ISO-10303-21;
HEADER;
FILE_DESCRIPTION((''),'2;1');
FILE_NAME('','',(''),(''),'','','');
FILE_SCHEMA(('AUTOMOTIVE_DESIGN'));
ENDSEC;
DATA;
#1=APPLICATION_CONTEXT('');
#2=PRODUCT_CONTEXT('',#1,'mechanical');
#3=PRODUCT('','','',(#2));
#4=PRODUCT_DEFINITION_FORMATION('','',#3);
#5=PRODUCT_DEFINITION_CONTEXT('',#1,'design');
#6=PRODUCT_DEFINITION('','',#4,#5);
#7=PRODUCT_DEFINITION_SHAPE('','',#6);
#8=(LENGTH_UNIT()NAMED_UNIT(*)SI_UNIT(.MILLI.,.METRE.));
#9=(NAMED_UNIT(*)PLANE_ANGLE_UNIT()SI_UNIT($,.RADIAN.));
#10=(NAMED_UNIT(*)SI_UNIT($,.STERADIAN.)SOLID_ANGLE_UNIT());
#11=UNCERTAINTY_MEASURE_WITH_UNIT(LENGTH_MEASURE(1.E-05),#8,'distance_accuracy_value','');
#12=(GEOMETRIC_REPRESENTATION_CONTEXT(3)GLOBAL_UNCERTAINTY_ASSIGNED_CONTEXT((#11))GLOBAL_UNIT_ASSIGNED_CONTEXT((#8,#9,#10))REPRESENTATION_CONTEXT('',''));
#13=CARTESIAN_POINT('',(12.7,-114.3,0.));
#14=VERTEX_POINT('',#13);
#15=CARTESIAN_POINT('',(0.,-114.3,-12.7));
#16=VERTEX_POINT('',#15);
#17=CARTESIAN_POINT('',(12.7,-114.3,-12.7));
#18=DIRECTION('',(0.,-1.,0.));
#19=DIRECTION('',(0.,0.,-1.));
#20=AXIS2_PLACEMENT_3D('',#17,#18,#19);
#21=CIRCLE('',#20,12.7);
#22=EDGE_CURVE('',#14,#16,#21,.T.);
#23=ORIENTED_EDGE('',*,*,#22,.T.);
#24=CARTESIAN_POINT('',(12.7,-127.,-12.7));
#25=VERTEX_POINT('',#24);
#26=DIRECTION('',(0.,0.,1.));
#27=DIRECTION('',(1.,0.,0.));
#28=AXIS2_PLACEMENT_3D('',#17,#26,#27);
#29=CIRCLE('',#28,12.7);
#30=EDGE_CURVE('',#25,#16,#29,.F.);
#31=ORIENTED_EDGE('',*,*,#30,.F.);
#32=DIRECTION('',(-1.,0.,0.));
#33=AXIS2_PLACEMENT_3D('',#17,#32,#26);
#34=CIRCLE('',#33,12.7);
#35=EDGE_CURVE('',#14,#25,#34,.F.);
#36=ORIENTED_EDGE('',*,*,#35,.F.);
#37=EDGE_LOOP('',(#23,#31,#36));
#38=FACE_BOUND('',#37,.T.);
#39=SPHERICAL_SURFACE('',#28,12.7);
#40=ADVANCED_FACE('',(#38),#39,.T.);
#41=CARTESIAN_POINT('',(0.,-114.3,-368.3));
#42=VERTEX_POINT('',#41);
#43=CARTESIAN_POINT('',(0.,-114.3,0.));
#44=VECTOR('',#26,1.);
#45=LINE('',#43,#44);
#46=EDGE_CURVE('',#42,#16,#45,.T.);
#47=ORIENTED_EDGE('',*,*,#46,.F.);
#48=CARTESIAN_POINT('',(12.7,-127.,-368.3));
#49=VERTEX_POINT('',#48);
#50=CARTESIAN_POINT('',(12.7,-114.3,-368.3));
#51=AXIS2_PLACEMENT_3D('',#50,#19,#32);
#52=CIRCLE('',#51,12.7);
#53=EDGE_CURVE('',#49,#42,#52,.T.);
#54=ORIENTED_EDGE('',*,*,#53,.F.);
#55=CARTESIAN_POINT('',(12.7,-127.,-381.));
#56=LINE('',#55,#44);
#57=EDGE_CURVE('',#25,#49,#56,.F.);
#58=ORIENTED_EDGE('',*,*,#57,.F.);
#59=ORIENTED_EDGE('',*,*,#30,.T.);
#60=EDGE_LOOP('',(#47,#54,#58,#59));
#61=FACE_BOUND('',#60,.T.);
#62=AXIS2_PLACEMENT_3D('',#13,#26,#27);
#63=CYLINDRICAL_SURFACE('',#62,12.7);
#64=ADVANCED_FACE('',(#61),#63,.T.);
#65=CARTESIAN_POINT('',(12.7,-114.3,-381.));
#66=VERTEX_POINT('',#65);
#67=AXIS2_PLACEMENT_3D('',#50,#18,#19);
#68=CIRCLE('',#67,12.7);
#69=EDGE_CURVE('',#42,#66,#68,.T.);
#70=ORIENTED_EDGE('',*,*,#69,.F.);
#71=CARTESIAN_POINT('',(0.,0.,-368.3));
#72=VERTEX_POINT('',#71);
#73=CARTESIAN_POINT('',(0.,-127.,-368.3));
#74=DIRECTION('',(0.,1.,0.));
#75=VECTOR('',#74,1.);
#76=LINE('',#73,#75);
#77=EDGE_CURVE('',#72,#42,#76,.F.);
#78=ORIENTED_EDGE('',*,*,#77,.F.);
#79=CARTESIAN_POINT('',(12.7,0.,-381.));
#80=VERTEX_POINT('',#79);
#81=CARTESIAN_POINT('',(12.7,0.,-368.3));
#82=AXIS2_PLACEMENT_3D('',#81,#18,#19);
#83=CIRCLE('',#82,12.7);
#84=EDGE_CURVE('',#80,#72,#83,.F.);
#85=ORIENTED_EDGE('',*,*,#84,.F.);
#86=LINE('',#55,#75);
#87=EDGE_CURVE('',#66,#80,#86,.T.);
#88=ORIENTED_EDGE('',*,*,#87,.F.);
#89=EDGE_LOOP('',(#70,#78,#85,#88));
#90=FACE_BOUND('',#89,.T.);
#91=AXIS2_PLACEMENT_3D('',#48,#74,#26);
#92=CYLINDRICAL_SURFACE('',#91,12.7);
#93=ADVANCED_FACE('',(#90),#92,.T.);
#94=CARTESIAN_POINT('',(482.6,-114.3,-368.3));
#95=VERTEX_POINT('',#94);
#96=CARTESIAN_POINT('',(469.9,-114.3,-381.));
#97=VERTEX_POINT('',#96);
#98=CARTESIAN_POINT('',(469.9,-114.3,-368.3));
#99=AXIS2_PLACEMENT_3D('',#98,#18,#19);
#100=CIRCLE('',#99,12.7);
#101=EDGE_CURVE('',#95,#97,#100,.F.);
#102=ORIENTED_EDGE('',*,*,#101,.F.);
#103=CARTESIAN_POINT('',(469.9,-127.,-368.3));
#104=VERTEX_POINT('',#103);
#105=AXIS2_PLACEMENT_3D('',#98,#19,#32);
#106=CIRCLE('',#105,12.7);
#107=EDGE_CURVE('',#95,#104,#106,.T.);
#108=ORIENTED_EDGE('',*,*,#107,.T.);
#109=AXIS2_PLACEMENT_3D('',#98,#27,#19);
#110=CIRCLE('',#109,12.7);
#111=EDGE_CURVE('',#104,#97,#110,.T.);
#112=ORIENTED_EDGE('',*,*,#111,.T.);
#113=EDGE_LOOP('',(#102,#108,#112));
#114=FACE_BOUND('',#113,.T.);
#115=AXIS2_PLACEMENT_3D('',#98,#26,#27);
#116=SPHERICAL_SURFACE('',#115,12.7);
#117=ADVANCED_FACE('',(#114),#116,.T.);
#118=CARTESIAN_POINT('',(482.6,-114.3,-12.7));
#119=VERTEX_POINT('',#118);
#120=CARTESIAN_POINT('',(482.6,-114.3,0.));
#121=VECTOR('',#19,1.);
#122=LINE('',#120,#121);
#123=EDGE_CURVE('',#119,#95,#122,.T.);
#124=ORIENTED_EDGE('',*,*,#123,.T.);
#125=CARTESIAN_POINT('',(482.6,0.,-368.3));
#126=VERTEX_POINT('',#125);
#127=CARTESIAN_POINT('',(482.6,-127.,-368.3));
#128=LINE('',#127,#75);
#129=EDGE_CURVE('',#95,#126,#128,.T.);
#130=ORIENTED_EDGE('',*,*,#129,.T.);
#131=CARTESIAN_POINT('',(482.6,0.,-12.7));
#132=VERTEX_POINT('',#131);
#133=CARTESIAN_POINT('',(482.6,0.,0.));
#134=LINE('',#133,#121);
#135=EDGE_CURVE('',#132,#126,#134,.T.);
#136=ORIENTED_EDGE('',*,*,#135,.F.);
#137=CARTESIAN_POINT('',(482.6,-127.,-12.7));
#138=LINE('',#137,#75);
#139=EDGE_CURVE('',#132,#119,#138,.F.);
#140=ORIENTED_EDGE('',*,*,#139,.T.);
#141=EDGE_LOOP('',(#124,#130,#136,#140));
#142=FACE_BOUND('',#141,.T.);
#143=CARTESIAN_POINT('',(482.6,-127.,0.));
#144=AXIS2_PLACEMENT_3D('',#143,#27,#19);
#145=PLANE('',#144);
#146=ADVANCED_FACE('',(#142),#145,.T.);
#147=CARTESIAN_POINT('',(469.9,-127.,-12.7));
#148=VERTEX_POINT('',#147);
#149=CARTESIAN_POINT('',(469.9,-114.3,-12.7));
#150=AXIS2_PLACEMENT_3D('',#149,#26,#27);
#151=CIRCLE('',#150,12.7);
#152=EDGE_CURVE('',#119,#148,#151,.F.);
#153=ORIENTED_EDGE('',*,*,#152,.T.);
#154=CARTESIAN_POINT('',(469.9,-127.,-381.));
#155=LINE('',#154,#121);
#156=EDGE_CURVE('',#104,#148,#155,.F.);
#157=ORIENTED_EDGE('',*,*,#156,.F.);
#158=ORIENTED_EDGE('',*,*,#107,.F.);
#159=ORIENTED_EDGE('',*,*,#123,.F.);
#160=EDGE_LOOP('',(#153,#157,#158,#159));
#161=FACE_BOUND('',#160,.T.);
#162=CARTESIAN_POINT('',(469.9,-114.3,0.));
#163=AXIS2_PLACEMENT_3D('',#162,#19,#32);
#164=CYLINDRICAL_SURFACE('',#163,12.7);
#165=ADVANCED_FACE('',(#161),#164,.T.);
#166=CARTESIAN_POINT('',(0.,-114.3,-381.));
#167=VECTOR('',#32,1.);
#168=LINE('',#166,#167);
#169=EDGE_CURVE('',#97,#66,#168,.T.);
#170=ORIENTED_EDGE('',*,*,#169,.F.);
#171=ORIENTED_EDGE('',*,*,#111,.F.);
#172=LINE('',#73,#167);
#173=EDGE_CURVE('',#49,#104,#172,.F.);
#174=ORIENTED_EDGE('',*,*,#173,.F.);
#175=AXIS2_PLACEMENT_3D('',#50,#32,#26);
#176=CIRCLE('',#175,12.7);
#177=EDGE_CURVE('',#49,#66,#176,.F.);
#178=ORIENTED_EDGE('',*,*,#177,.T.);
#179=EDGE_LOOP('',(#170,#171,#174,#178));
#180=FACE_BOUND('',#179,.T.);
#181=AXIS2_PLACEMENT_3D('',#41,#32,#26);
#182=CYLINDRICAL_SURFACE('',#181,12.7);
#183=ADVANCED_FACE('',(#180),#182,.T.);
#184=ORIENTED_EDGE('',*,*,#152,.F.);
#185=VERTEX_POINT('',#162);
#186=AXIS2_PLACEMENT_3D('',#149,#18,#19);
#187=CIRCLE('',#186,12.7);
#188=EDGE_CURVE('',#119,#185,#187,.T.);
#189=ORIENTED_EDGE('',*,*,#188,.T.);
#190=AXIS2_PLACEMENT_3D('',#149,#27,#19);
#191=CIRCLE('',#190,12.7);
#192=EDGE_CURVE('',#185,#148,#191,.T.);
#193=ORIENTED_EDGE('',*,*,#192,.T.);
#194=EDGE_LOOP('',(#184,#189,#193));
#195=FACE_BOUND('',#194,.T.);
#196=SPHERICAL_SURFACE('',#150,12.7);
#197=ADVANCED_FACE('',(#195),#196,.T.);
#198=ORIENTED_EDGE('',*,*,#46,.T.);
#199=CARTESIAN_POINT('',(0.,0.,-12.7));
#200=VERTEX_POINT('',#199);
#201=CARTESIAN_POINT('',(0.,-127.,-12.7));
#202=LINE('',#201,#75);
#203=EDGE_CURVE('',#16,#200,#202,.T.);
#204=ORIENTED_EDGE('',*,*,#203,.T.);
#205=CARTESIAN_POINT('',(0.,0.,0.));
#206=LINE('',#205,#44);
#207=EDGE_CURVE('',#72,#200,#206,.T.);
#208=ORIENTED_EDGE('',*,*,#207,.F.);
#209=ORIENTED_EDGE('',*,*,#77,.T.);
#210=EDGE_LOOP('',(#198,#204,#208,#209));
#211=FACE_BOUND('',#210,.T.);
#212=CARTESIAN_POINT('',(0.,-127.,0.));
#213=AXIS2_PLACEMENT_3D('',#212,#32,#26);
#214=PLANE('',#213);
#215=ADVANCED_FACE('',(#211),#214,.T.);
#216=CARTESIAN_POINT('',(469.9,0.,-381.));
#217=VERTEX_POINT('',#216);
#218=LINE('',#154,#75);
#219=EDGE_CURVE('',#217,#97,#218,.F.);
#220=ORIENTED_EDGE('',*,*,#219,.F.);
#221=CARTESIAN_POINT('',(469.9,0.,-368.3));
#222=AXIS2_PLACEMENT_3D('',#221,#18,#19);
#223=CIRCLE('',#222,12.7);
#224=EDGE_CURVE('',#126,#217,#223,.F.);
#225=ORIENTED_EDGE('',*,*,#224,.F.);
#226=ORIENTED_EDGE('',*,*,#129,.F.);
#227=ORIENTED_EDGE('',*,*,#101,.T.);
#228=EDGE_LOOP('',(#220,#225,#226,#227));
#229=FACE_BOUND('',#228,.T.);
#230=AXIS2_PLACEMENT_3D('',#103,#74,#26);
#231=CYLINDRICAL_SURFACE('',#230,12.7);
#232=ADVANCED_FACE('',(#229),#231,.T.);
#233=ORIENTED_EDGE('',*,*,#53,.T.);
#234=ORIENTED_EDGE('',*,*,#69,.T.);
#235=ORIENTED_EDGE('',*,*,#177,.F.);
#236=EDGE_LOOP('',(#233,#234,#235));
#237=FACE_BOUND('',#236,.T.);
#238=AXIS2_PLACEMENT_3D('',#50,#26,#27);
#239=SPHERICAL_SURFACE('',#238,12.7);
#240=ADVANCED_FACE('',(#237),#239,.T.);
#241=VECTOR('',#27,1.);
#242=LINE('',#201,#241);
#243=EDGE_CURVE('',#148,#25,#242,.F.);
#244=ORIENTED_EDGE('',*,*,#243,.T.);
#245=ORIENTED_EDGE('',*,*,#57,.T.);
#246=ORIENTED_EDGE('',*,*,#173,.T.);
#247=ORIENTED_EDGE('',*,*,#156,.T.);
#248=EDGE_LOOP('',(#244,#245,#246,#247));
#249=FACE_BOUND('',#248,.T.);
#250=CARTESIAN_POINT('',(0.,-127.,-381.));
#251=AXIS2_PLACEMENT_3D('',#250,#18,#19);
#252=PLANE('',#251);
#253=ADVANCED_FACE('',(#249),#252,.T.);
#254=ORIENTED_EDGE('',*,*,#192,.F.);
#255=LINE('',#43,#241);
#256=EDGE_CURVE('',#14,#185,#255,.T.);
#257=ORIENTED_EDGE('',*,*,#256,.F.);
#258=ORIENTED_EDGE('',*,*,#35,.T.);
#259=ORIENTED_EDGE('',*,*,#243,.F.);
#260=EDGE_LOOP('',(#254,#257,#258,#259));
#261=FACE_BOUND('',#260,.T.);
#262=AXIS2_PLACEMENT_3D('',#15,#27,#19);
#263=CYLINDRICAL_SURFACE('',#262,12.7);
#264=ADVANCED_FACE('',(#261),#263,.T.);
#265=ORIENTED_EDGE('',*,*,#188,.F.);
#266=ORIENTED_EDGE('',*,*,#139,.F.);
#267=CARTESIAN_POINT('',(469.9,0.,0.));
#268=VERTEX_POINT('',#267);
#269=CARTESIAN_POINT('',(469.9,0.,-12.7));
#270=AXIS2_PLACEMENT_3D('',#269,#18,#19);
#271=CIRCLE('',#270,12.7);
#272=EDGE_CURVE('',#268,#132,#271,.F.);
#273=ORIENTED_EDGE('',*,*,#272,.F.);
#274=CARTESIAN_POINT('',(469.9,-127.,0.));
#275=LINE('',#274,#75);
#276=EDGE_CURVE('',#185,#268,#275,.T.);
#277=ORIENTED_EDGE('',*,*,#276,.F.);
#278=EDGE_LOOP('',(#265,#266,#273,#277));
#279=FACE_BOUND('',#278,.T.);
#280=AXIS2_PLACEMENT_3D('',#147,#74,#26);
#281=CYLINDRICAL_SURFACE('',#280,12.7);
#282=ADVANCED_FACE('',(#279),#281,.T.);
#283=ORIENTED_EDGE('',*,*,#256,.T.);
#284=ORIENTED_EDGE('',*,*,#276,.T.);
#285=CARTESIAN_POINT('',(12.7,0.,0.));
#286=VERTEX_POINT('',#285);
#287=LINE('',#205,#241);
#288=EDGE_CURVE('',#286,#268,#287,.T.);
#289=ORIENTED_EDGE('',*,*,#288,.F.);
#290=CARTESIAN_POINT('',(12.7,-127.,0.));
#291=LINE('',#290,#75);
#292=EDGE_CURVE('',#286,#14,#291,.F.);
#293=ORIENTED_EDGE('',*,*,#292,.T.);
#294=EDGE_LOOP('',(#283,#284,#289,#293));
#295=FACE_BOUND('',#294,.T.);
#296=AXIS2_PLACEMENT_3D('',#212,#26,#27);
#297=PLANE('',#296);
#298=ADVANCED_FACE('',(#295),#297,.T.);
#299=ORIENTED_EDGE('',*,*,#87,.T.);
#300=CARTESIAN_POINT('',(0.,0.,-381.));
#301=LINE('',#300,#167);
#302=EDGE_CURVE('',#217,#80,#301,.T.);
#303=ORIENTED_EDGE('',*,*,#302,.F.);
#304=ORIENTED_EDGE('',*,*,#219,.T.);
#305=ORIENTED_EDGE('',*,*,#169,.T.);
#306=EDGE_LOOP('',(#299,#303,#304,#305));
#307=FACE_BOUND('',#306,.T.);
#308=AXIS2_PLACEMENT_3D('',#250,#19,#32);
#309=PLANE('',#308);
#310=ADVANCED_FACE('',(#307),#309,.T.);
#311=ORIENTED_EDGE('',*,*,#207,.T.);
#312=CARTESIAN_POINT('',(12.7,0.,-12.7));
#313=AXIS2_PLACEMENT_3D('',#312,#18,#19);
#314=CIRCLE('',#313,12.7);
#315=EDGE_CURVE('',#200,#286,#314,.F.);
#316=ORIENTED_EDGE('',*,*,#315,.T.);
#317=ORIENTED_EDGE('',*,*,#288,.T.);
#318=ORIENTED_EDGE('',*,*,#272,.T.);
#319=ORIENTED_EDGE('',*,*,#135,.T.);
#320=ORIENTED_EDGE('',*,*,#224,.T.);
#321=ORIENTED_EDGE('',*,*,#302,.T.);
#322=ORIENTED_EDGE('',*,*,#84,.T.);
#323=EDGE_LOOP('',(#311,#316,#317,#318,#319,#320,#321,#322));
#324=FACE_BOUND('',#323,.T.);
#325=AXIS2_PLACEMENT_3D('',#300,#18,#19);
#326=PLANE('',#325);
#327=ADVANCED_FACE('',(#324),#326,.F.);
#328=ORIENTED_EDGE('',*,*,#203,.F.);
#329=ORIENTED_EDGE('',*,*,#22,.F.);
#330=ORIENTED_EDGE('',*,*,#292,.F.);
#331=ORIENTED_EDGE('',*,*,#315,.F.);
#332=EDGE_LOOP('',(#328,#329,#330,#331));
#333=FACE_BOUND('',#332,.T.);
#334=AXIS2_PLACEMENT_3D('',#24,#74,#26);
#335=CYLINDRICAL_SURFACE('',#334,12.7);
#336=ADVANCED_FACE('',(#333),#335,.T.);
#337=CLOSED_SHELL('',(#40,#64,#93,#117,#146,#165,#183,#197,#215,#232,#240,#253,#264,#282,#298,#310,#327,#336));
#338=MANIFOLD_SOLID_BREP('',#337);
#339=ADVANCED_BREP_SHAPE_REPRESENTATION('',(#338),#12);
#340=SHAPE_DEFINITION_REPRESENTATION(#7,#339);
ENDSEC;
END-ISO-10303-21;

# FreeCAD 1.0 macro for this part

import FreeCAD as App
import Part
import Sketcher
Q = App.Units.Quantity


def edges_at(feature, points):
    """Names of the edges that pass closest to the given points."""
    edges = feature.Shape.Edges
    near = lambda p: min(range(len(edges)), key=lambda i: edges[i].distToShape(Part.Vertex(*p))[0])
    return sorted({f"Edge{near(p) + 1}" for p in points})


def add_polygon(sketch, points):
    """Adds a closed chain of lines whose ends are joined by coincident constraints."""
    first, n = sketch.GeometryCount, len(points)
    for a, b in zip(points, points[1:] + points[:1]):
        sketch.addGeometry(Part.LineSegment(App.Vector(*a, 0), App.Vector(*b, 0)), False)
    for i in range(n):
        sketch.addConstraint(Sketcher.Constraint("Coincident", first + i, 2, first + (i + 1) % n, 1))

doc = App.newDocument("Part")
body = doc.addObject("PartDesign::Body", "Body")

# Sketch on XZ plane
sketch1 = doc.addObject("Sketcher::SketchObject", "Sketch")
body.addObject(sketch1)
sketch1.AttachmentSupport = (doc.XZ_Plane, [""])
sketch1.MapMode = "FlatFace"
add_polygon(sketch1, [(0, -381), (0, 0), (483, 0), (483, -381)])  # lines 0-3
sketch1.addConstraint([
    Sketcher.Constraint("Vertical", 0),
    Sketcher.Constraint("Horizontal", 1),
    Sketcher.Constraint("Vertical", 2),
    Sketcher.Constraint("Horizontal", 3),
    Sketcher.Constraint("Coincident", 0, 2, -1, 1),
    Sketcher.Constraint("DistanceX", 1, 1, 1, 2, Q("19 in")),
    Sketcher.Constraint("DistanceY", 0, 1, 0, 2, Q("15 in")),
])
pad1 = doc.addObject("PartDesign::Pad", "Pad")
body.addObject(pad1)
pad1.Profile = sketch1
pad1.Length = Q("5 in")
doc.recompute()

fillet = doc.addObject("PartDesign::Fillet", "Fillet")
body.addObject(fillet)
fillet.Base = (pad1, edges_at(pad1, [
    (482.6, -127, -190.5),
    (241.3, -127, -381),
    (0, -127, -190.5),
    (241.3, -127, 0),
    (0, -63.5, -381),
    (482.6, -63.5, -381),
    (482.6, -63.5, 0),
    (0, -63.5, 0),
]))
fillet.Radius = Q("0.5 in")

doc.recompute()
